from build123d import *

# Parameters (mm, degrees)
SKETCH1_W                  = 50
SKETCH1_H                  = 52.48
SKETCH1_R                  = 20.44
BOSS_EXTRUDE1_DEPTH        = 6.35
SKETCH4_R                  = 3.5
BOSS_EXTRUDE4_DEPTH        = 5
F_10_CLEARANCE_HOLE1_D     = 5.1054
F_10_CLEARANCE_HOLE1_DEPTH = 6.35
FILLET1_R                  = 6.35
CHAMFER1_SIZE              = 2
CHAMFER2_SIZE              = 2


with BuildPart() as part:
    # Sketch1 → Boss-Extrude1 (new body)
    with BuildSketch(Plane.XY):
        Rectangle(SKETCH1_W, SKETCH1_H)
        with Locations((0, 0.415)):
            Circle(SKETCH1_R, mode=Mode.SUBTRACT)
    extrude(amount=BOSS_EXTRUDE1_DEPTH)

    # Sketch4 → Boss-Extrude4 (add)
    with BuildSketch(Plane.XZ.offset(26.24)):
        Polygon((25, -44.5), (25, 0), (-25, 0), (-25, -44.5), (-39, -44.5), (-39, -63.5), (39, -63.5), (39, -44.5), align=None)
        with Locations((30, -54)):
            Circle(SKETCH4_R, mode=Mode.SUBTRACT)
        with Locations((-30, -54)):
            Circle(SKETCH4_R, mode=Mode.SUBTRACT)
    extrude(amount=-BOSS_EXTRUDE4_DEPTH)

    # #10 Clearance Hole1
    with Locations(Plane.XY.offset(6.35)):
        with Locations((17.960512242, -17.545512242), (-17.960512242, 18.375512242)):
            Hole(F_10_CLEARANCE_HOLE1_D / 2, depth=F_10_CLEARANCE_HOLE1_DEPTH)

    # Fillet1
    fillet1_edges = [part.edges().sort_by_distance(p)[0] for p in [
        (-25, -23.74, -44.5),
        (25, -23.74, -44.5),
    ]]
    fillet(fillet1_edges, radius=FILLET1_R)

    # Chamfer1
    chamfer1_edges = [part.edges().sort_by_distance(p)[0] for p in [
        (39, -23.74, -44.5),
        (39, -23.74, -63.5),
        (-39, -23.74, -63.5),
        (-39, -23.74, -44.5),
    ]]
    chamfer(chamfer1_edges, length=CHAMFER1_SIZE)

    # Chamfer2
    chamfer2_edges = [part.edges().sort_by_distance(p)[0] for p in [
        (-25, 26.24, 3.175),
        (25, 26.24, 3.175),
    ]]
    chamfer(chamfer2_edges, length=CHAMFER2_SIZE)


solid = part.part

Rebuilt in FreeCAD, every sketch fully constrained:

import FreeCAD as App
import Part
import Sketcher
Q = App.Units.Quantity


def edges_at(feature, points):
    """Names of the edges that pass closest to the given points."""
    edges = feature.Shape.Edges
    near = lambda p: min(range(len(edges)), key=lambda i: edges[i].distToShape(Part.Vertex(*p))[0])
    return sorted({f"Edge{near(p) + 1}" for p in points})

doc = App.newDocument("Part")
body = doc.addObject("PartDesign::Body", "Body")

# Sketch on XY plane
sketch1 = doc.addObject("Sketcher::SketchObject", "Sketch")
body.addObject(sketch1)
sketch1.AttachmentSupport = (doc.XY_Plane, [""])
sketch1.MapMode = "FlatFace"
sketch1.addGeometry([
    Part.LineSegment(App.Vector(-25, 26, 0), App.Vector(-25, -26, 0)),  # 0
    Part.LineSegment(App.Vector(-25, -26, 0), App.Vector(25, -26, 0)),  # 1
    Part.LineSegment(App.Vector(25, -26, 0), App.Vector(25, 26, 0)),  # 2
    Part.LineSegment(App.Vector(25, 26, 0), App.Vector(-25, 26, 0)),  # 3
    Part.Circle(App.Vector(0, 0, 0), App.Vector(0, 0, 1), 20),  # 4
], False)
sketch1.addConstraint([
    Sketcher.Constraint("Coincident", 0, 2, 1, 1),
    Sketcher.Constraint("Coincident", 1, 2, 2, 1),
    Sketcher.Constraint("Coincident", 2, 2, 3, 1),
    Sketcher.Constraint("Coincident", 3, 2, 0, 1),
    Sketcher.Constraint("Vertical", 0),
    Sketcher.Constraint("Horizontal", 1),
    Sketcher.Constraint("Vertical", 2),
    Sketcher.Constraint("Horizontal", 3),
    Sketcher.Constraint("Symmetric", 0, 2, 2, 2, -1, 1),
    Sketcher.Constraint("PointOnObject", 4, 3, -2),
    Sketcher.Constraint("Diameter", 4, Q("40.88 mm")),
    Sketcher.Constraint("DistanceX", 1, 1, 1, 2, Q("50 mm")),
    Sketcher.Constraint("DistanceY", 0, 2, 0, 1, Q("52.48 mm")),
    Sketcher.Constraint("DistanceY", -1, 1, 4, 3, Q("0.415 mm")),
])
pad1 = doc.addObject("PartDesign::Pad", "Pad")
body.addObject(pad1)
pad1.Profile = sketch1
pad1.Length = 6.35

# Sketch on XZ plane
sketch2 = doc.addObject("Sketcher::SketchObject", "Sketch001")
body.addObject(sketch2)
sketch2.AttachmentSupport = (doc.XZ_Plane, [""])
sketch2.MapMode = "FlatFace"
sketch2.AttachmentOffset = App.Placement(App.Vector(0, 0, 26.24), App.Rotation())
sketch2.addGeometry([
    Part.LineSegment(App.Vector(25, -44.5, 0), App.Vector(25, 0, 0)),  # 0
    Part.LineSegment(App.Vector(25, 0, 0), App.Vector(-25, 0, 0)),  # 1
    Part.LineSegment(App.Vector(-25, 0, 0), App.Vector(-25, -44.5, 0)),  # 2
    Part.LineSegment(App.Vector(-25, -44.5, 0), App.Vector(-39, -44.5, 0)),  # 3
    Part.LineSegment(App.Vector(-39, -44.5, 0), App.Vector(-39, -63.5, 0)),  # 4
    Part.LineSegment(App.Vector(-39, -63.5, 0), App.Vector(39, -63.5, 0)),  # 5
    Part.LineSegment(App.Vector(39, -63.5, 0), App.Vector(39, -44.5, 0)),  # 6
    Part.LineSegment(App.Vector(39, -44.5, 0), App.Vector(25, -44.5, 0)),  # 7
    Part.Circle(App.Vector(-30, -54, 0), App.Vector(0, 0, 1), 3.5),  # 8
    Part.Circle(App.Vector(30, -54, 0), App.Vector(0, 0, 1), 3.5),  # 9
], False)
sketch2.addConstraint([
    Sketcher.Constraint("Coincident", 0, 2, 1, 1),
    Sketcher.Constraint("Coincident", 1, 2, 2, 1),
    Sketcher.Constraint("Coincident", 2, 2, 3, 1),
    Sketcher.Constraint("Coincident", 3, 2, 4, 1),
    Sketcher.Constraint("Coincident", 4, 2, 5, 1),
    Sketcher.Constraint("Coincident", 5, 2, 6, 1),
    Sketcher.Constraint("Coincident", 6, 2, 7, 1),
    Sketcher.Constraint("Coincident", 7, 2, 0, 1),
    Sketcher.Constraint("Vertical", 0),
    Sketcher.Constraint("Horizontal", 1),
    Sketcher.Constraint("Vertical", 2),
    Sketcher.Constraint("Horizontal", 3),
    Sketcher.Constraint("Vertical", 4),
    Sketcher.Constraint("Horizontal", 5),
    Sketcher.Constraint("Vertical", 6),
    Sketcher.Constraint("Horizontal", 7),
    Sketcher.Constraint("Equal", 8, 9),
    Sketcher.Constraint("Symmetric", 0, 2, 1, 2, -1, 1),
    Sketcher.Constraint("Symmetric", 8, 3, 9, 3, -2),
    Sketcher.Constraint("Symmetric", 3, 2, 6, 2, -2),
    Sketcher.Constraint("Diameter", 8, Q("7 mm")),
    Sketcher.Constraint("DistanceX", 1, 2, 1, 1, Q("50 mm")),
    Sketcher.Constraint("DistanceX", 3, 2, 3, 1, Q("14 mm")),
    Sketcher.Constraint("DistanceY", 4, 2, 4, 1, Q("19 mm")),
    Sketcher.Constraint("DistanceY", 0, 1, 0, 2, Q("44.5 mm")),
    Sketcher.Constraint("DistanceX", 8, 3, -1, 1, Q("30 mm")),
    Sketcher.Constraint("DistanceY", 8, 3, -1, 1, Q("54 mm")),
])
pad2 = doc.addObject("PartDesign::Pad", "Pad001")
body.addObject(pad2)
pad2.Profile = sketch2
pad2.Length = 5
pad2.Reversed = True

# Sketch on XY plane
sketch3 = doc.addObject("Sketcher::SketchObject", "Sketch002")
body.addObject(sketch3)
sketch3.AttachmentSupport = (doc.XY_Plane, [""])
sketch3.MapMode = "FlatFace"
sketch3.AttachmentOffset = App.Placement(App.Vector(0, 0, 6.35), App.Rotation())
sketch3.addGeometry([
    Part.Circle(App.Vector(18, -17.5, 0), App.Vector(0, 0, 1), 2.6),
    Part.Circle(App.Vector(-18, 18.4, 0), App.Vector(0, 0, 1), 2.6),
], False)
sketch3.addConstraint([
    Sketcher.Constraint("Equal", 0, 1),
    Sketcher.Constraint("Diameter", 0, Q("5.1054 mm")),
    Sketcher.Constraint("DistanceX", -1, 1, 0, 3, Q("17.960512 mm")),
    Sketcher.Constraint("DistanceY", 0, 3, -1, 1, Q("17.545512 mm")),
    Sketcher.Constraint("DistanceX", 1, 3, -1, 1, Q("17.960512 mm")),
    Sketcher.Constraint("DistanceY", -1, 1, 1, 3, Q("18.375512 mm")),
])
doc.recompute()
hole = doc.addObject("PartDesign::Hole", "Hole")
body.addObject(hole)
hole.Profile = sketch3
hole.ThreadType = "None"
hole.Diameter = 5.1054
hole.DepthType = "Dimension"
hole.Depth = 6.35
hole.DrillPoint = "Flat"
doc.recompute()

fillet = doc.addObject("PartDesign::Fillet", "Fillet")
body.addObject(fillet)
fillet.Base = (hole, edges_at(hole, [(-25, -23.74, -44.5), (25, -23.74, -44.5)]))
fillet.Radius = 6.35
doc.recompute()

chamfer = doc.addObject("PartDesign::Chamfer", "Chamfer")
body.addObject(chamfer)
chamfer.Base = (fillet, edges_at(fillet, [
    (39, -23.74, -44.5),
    (39, -23.74, -63.5),
    (-39, -23.74, -63.5),
    (-39, -23.74, -44.5),
]))
chamfer.Size = 2
doc.recompute()

chamfer2 = doc.addObject("PartDesign::Chamfer", "Chamfer001")
body.addObject(chamfer2)
chamfer2.Base = (chamfer, edges_at(chamfer, [(-25, 26.24, 3.175), (25, 26.24, 3.175)]))
chamfer2.Size = 2

doc.recompute()
